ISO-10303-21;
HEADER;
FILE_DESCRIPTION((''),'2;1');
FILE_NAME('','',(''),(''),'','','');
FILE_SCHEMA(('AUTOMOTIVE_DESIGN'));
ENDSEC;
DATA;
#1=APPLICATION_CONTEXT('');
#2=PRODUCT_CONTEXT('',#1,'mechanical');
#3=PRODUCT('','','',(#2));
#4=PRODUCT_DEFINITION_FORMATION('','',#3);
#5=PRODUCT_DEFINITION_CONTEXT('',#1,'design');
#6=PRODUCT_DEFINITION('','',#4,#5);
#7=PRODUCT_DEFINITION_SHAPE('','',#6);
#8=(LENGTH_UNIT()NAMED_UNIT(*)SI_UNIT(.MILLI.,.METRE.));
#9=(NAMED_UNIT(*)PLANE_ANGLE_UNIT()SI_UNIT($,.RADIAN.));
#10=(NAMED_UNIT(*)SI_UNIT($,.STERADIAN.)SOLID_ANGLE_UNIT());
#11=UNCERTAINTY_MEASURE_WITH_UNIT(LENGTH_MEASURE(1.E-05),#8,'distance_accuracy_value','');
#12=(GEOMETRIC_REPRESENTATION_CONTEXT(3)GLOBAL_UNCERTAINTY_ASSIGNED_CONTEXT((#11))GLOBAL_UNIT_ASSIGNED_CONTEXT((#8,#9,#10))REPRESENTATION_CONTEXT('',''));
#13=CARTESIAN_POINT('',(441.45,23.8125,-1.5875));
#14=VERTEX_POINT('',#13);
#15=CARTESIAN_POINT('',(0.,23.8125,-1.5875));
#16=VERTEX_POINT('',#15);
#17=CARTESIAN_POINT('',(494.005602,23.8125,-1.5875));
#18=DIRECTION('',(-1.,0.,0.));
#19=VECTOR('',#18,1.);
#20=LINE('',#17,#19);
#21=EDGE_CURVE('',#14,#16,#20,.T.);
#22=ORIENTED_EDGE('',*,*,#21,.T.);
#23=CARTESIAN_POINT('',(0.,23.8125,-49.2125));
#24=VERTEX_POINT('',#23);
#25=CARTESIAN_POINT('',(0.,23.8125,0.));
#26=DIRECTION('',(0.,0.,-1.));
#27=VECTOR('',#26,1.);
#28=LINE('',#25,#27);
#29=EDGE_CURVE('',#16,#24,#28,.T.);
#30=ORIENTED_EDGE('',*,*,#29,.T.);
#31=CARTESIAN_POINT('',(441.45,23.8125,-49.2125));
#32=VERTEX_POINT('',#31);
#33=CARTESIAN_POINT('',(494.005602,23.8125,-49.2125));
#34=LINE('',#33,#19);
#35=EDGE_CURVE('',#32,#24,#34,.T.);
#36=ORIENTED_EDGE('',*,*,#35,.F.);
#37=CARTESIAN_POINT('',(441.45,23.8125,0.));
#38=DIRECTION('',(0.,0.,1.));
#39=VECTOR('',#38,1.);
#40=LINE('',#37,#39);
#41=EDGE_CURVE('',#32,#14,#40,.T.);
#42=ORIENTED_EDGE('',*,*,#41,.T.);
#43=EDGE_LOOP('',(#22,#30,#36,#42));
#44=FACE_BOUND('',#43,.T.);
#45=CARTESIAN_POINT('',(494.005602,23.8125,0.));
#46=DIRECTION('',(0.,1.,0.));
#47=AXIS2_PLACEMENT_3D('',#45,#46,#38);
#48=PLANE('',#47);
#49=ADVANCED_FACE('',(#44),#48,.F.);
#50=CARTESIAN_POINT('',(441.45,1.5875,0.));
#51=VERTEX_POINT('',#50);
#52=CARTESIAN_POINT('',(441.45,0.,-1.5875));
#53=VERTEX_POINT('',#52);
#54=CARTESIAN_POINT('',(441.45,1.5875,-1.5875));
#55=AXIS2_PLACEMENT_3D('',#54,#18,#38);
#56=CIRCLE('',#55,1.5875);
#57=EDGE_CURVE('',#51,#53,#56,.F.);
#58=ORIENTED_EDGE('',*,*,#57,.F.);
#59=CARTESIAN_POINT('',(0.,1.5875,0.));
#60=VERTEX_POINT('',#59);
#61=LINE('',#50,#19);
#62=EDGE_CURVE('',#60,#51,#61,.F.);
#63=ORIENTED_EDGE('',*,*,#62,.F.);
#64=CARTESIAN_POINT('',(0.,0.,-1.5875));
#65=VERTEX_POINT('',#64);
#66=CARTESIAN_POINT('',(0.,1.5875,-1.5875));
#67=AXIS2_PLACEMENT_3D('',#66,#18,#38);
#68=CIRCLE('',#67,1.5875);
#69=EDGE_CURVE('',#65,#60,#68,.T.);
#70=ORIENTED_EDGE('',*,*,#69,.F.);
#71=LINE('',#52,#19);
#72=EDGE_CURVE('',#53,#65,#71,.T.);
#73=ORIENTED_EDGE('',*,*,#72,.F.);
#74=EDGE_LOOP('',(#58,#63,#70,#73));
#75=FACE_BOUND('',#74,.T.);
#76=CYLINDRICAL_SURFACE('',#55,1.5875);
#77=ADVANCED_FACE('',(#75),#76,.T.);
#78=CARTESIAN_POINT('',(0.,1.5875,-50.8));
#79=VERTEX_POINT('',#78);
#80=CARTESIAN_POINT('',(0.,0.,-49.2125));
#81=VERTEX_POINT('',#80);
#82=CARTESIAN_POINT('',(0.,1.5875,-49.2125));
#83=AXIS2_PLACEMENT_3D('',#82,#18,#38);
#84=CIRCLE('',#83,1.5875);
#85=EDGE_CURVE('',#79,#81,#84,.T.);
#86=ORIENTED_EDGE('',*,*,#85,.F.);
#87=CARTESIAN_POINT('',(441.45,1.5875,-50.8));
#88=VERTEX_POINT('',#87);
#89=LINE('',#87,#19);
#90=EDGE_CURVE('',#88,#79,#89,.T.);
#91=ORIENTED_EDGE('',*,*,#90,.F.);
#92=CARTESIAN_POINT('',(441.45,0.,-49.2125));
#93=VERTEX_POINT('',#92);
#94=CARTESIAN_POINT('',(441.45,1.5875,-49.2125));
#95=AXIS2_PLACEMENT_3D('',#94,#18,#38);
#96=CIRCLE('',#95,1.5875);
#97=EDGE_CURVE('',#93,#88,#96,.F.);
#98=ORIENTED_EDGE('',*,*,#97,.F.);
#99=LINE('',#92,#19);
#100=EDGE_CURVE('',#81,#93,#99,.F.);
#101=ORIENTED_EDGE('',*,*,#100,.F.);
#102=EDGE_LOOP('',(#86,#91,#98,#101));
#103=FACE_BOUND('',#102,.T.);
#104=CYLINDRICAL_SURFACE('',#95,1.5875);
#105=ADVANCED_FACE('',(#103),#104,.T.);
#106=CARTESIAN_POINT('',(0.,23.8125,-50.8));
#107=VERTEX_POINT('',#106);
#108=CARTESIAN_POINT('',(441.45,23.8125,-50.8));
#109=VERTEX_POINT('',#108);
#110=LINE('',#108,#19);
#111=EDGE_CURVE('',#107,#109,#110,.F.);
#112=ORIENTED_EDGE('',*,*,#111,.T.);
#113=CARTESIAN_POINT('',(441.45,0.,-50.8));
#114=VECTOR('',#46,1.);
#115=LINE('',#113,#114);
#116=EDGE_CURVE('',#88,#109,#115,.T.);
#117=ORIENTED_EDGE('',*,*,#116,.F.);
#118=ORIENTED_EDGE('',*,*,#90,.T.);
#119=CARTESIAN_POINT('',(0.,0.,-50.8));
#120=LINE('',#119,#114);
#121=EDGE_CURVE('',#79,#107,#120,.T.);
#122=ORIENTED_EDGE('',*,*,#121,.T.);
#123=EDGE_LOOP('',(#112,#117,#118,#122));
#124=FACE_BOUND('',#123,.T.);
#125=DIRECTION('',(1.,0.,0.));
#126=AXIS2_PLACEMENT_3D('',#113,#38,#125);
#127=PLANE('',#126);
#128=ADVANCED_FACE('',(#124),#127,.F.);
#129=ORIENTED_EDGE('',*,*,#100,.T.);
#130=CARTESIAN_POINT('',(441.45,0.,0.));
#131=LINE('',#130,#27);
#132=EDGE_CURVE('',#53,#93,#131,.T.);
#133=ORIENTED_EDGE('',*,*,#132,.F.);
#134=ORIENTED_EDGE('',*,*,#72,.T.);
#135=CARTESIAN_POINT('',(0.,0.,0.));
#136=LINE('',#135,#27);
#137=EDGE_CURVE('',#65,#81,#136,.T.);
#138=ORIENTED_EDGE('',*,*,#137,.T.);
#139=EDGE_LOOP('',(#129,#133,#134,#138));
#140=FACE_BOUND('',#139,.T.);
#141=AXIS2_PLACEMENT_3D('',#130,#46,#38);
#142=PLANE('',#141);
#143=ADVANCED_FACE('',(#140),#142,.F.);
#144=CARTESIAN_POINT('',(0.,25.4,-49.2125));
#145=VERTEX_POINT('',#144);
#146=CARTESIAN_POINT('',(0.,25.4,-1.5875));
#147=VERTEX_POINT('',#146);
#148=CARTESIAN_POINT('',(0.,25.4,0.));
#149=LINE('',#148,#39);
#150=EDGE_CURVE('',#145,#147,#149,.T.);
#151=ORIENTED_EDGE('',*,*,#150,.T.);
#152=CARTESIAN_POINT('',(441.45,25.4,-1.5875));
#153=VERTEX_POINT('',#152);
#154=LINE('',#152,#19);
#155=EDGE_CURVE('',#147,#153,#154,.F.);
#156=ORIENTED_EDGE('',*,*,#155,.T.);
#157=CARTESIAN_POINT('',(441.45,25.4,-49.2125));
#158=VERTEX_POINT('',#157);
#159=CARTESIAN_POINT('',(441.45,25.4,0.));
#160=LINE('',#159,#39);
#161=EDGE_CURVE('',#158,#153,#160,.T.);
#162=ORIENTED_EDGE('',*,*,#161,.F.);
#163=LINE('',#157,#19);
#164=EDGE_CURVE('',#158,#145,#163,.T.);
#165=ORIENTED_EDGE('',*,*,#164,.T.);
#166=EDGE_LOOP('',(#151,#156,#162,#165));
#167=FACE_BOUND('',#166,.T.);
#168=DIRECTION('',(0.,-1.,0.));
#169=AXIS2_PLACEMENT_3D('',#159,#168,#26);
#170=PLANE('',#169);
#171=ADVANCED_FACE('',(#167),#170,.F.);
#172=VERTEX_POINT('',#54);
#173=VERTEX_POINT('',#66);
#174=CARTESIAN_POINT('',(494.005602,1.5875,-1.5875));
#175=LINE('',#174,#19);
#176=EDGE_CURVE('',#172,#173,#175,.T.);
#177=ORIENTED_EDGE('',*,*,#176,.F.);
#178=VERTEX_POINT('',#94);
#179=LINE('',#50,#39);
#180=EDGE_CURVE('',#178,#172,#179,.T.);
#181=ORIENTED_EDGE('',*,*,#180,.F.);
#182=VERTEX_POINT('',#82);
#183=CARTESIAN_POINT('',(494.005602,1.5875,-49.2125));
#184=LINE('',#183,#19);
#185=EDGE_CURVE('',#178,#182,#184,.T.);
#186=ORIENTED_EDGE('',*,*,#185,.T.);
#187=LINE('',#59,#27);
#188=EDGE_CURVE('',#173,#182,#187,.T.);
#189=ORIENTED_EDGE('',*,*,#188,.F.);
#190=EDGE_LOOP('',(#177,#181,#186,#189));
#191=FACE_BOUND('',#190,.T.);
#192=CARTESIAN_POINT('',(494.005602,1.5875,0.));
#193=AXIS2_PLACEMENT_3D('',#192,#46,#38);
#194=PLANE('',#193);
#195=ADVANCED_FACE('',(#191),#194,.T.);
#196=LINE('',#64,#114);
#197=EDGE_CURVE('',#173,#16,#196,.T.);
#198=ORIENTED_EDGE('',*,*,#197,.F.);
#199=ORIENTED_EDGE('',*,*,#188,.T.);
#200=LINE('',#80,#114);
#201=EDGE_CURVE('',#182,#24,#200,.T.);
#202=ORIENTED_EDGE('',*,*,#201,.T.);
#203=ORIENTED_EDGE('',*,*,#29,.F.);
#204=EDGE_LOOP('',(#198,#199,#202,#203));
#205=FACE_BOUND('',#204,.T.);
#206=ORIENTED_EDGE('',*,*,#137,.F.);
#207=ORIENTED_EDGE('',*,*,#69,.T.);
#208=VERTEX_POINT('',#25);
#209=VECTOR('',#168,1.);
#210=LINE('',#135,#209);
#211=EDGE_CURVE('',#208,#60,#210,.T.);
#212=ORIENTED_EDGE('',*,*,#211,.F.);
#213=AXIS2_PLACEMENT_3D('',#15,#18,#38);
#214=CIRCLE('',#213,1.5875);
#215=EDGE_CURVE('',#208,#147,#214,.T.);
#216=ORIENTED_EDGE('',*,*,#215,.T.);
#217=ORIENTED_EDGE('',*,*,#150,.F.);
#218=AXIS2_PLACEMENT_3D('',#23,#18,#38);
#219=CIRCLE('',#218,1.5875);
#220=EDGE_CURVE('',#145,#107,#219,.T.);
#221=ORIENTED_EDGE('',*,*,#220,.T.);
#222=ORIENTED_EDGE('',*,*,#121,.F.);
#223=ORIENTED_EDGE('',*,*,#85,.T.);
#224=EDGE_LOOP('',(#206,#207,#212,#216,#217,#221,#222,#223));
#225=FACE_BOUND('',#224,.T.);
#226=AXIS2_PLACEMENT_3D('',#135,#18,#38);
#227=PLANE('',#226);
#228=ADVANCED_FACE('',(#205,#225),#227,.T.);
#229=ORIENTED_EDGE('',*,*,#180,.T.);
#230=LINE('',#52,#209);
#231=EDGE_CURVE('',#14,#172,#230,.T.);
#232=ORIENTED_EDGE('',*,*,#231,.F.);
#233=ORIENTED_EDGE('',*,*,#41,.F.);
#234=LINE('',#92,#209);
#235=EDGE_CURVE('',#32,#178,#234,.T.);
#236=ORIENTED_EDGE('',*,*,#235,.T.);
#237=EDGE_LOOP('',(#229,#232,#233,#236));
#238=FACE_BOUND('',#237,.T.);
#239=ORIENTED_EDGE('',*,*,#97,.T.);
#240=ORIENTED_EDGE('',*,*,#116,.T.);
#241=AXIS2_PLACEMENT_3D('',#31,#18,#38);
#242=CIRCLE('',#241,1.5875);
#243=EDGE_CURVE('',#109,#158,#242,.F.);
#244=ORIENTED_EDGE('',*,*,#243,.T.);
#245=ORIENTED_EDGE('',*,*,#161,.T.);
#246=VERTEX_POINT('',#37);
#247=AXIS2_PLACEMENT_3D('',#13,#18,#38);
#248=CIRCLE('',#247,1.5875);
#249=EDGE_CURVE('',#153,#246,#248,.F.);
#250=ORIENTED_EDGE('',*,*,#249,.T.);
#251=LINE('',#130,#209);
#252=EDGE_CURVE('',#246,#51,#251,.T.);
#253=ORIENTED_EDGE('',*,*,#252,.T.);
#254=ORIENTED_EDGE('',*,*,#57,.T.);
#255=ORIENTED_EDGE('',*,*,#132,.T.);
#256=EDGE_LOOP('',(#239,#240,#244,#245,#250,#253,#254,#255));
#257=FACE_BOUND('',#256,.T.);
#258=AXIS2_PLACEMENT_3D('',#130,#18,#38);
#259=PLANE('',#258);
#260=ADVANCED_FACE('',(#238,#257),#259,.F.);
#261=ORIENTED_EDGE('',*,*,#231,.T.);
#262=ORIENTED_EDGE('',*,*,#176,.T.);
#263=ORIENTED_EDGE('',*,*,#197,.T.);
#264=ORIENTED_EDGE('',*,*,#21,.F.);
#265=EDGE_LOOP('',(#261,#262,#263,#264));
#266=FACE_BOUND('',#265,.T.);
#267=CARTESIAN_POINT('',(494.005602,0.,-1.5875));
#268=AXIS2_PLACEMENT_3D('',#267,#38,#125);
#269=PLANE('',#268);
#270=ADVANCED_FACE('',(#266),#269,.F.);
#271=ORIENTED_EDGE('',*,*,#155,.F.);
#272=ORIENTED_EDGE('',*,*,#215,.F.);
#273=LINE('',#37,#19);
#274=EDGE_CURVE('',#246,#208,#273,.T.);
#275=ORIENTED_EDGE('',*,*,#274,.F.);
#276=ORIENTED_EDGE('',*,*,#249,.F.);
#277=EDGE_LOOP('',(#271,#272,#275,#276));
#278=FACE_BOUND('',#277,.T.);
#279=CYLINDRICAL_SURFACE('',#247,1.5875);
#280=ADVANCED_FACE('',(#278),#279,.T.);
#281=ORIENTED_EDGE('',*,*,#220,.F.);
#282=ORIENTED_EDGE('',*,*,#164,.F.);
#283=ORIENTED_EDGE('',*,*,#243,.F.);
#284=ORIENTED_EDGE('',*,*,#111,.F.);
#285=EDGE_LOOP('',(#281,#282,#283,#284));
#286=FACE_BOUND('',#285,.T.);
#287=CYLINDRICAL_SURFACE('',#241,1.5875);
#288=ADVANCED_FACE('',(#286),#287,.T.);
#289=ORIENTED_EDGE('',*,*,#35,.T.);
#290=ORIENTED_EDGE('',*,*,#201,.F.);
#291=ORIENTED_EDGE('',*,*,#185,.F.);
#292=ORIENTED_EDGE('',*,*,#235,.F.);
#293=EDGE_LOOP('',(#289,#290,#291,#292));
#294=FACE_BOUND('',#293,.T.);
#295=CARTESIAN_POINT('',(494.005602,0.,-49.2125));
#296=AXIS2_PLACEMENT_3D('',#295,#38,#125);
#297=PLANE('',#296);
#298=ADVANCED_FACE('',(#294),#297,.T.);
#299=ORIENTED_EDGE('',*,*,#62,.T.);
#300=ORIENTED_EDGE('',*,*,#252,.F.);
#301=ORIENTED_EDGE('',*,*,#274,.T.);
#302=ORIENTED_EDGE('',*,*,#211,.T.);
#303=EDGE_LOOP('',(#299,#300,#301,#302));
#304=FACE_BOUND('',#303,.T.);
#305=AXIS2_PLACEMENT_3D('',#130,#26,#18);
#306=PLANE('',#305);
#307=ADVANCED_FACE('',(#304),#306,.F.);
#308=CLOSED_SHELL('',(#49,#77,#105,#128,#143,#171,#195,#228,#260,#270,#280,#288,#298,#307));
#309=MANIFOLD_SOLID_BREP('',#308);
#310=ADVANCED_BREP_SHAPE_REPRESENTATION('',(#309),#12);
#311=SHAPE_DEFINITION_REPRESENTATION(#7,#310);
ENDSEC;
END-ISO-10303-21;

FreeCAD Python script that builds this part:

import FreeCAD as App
import Part
import Sketcher

V = App.Vector
Q = App.Units.Quantity


def edges_at(feature, points):
    """Names of the edges that pass closest to the given points."""
    edges = feature.Shape.Edges
    near = lambda p: min(range(len(edges)), key=lambda i: edges[i].distToShape(Part.Vertex(*p))[0])
    return sorted({f"Edge{near(p) + 1}" for p in points})


def add_polygon(sketch, points):
    """Adds a closed chain of lines whose ends are joined by coincident constraints."""
    first, n = sketch.GeometryCount, len(points)
    for a, b in zip(points, points[1:] + points[:1]):
        sketch.addGeometry(Part.LineSegment(App.Vector(*a, 0), App.Vector(*b, 0)), False)
    for i in range(n):
        sketch.addConstraint(Sketcher.Constraint("Coincident", first + i, 2, first + (i + 1) % n, 1))

doc = App.newDocument("Part")
body = doc.addObject("PartDesign::Body", "Body")

# Sketch on YZ plane
sketch1 = body.newObject("Sketcher::SketchObject", "Sketch")
sketch1.AttachmentSupport = (doc.getObject("YZ_Plane"), [""])
sketch1.MapMode = "FlatFace"
add_polygon(sketch1, [(25, 0), (0, 0), (0, -51), (25, -51)])  # lines 0-3
sketch1.addConstraint(Sketcher.Constraint("Horizontal", 0))
sketch1.addConstraint(Sketcher.Constraint("Vertical", 1))
sketch1.addConstraint(Sketcher.Constraint("Horizontal", 2))
sketch1.addConstraint(Sketcher.Constraint("Vertical", 3))
sketch1.addConstraint(Sketcher.Constraint("Coincident", 0, 2, -1, 1))
sketch1.addConstraint(Sketcher.Constraint("DistanceX", 0, 2, 0, 1, Q("1 in")))
sketch1.addConstraint(Sketcher.Constraint("DistanceY", 1, 2, 1, 1, Q("2 in")))
pad1 = body.newObject("PartDesign::Pad", "Pad")
pad1.Profile = sketch1
pad1.Length = 441.45

# Sketch on YZ plane
sketch2 = body.newObject("Sketcher::SketchObject", "Sketch001")
sketch2.AttachmentSupport = (doc.getObject("YZ_Plane"), [""])
sketch2.MapMode = "FlatFace"
add_polygon(sketch2, [(24, -49), (2, -49), (2, -2), (24, -2)])  # lines 0-3
sketch2.addConstraint(Sketcher.Constraint("Horizontal", 0))
sketch2.addConstraint(Sketcher.Constraint("Vertical", 1))
sketch2.addConstraint(Sketcher.Constraint("Horizontal", 2))
sketch2.addConstraint(Sketcher.Constraint("Vertical", 3))
sketch2.addConstraint(Sketcher.Constraint("DistanceX", 0, 2, 0, 1, Q("0.875 in")))
sketch2.addConstraint(Sketcher.Constraint("DistanceY", 1, 1, 1, 2, Q("1.875 in")))
sketch2.addConstraint(Sketcher.Constraint("DistanceX", -1, 1, 0, 2, Q("0.0625 in")))
sketch2.addConstraint(Sketcher.Constraint("DistanceY", 0, 2, -1, 1, Q("1.9375 in")))
pocket1 = body.newObject("PartDesign::Pocket", "Pocket")
pocket1.Profile = sketch2
pocket1.Length = 441.45
pocket1.Reversed = True
doc.recompute()

fillet = body.newObject("PartDesign::Fillet", "Fillet")
fillet.Base = (pocket1, edges_at(pocket1, [
    (220.725, 25.4, 0),
    (220.725, 25.4, -50.8),
    (220.725, 0, -50.8),
    (220.725, 0, 0),
]))
fillet.Radius = Q("0.0625 in")

doc.recompute()
